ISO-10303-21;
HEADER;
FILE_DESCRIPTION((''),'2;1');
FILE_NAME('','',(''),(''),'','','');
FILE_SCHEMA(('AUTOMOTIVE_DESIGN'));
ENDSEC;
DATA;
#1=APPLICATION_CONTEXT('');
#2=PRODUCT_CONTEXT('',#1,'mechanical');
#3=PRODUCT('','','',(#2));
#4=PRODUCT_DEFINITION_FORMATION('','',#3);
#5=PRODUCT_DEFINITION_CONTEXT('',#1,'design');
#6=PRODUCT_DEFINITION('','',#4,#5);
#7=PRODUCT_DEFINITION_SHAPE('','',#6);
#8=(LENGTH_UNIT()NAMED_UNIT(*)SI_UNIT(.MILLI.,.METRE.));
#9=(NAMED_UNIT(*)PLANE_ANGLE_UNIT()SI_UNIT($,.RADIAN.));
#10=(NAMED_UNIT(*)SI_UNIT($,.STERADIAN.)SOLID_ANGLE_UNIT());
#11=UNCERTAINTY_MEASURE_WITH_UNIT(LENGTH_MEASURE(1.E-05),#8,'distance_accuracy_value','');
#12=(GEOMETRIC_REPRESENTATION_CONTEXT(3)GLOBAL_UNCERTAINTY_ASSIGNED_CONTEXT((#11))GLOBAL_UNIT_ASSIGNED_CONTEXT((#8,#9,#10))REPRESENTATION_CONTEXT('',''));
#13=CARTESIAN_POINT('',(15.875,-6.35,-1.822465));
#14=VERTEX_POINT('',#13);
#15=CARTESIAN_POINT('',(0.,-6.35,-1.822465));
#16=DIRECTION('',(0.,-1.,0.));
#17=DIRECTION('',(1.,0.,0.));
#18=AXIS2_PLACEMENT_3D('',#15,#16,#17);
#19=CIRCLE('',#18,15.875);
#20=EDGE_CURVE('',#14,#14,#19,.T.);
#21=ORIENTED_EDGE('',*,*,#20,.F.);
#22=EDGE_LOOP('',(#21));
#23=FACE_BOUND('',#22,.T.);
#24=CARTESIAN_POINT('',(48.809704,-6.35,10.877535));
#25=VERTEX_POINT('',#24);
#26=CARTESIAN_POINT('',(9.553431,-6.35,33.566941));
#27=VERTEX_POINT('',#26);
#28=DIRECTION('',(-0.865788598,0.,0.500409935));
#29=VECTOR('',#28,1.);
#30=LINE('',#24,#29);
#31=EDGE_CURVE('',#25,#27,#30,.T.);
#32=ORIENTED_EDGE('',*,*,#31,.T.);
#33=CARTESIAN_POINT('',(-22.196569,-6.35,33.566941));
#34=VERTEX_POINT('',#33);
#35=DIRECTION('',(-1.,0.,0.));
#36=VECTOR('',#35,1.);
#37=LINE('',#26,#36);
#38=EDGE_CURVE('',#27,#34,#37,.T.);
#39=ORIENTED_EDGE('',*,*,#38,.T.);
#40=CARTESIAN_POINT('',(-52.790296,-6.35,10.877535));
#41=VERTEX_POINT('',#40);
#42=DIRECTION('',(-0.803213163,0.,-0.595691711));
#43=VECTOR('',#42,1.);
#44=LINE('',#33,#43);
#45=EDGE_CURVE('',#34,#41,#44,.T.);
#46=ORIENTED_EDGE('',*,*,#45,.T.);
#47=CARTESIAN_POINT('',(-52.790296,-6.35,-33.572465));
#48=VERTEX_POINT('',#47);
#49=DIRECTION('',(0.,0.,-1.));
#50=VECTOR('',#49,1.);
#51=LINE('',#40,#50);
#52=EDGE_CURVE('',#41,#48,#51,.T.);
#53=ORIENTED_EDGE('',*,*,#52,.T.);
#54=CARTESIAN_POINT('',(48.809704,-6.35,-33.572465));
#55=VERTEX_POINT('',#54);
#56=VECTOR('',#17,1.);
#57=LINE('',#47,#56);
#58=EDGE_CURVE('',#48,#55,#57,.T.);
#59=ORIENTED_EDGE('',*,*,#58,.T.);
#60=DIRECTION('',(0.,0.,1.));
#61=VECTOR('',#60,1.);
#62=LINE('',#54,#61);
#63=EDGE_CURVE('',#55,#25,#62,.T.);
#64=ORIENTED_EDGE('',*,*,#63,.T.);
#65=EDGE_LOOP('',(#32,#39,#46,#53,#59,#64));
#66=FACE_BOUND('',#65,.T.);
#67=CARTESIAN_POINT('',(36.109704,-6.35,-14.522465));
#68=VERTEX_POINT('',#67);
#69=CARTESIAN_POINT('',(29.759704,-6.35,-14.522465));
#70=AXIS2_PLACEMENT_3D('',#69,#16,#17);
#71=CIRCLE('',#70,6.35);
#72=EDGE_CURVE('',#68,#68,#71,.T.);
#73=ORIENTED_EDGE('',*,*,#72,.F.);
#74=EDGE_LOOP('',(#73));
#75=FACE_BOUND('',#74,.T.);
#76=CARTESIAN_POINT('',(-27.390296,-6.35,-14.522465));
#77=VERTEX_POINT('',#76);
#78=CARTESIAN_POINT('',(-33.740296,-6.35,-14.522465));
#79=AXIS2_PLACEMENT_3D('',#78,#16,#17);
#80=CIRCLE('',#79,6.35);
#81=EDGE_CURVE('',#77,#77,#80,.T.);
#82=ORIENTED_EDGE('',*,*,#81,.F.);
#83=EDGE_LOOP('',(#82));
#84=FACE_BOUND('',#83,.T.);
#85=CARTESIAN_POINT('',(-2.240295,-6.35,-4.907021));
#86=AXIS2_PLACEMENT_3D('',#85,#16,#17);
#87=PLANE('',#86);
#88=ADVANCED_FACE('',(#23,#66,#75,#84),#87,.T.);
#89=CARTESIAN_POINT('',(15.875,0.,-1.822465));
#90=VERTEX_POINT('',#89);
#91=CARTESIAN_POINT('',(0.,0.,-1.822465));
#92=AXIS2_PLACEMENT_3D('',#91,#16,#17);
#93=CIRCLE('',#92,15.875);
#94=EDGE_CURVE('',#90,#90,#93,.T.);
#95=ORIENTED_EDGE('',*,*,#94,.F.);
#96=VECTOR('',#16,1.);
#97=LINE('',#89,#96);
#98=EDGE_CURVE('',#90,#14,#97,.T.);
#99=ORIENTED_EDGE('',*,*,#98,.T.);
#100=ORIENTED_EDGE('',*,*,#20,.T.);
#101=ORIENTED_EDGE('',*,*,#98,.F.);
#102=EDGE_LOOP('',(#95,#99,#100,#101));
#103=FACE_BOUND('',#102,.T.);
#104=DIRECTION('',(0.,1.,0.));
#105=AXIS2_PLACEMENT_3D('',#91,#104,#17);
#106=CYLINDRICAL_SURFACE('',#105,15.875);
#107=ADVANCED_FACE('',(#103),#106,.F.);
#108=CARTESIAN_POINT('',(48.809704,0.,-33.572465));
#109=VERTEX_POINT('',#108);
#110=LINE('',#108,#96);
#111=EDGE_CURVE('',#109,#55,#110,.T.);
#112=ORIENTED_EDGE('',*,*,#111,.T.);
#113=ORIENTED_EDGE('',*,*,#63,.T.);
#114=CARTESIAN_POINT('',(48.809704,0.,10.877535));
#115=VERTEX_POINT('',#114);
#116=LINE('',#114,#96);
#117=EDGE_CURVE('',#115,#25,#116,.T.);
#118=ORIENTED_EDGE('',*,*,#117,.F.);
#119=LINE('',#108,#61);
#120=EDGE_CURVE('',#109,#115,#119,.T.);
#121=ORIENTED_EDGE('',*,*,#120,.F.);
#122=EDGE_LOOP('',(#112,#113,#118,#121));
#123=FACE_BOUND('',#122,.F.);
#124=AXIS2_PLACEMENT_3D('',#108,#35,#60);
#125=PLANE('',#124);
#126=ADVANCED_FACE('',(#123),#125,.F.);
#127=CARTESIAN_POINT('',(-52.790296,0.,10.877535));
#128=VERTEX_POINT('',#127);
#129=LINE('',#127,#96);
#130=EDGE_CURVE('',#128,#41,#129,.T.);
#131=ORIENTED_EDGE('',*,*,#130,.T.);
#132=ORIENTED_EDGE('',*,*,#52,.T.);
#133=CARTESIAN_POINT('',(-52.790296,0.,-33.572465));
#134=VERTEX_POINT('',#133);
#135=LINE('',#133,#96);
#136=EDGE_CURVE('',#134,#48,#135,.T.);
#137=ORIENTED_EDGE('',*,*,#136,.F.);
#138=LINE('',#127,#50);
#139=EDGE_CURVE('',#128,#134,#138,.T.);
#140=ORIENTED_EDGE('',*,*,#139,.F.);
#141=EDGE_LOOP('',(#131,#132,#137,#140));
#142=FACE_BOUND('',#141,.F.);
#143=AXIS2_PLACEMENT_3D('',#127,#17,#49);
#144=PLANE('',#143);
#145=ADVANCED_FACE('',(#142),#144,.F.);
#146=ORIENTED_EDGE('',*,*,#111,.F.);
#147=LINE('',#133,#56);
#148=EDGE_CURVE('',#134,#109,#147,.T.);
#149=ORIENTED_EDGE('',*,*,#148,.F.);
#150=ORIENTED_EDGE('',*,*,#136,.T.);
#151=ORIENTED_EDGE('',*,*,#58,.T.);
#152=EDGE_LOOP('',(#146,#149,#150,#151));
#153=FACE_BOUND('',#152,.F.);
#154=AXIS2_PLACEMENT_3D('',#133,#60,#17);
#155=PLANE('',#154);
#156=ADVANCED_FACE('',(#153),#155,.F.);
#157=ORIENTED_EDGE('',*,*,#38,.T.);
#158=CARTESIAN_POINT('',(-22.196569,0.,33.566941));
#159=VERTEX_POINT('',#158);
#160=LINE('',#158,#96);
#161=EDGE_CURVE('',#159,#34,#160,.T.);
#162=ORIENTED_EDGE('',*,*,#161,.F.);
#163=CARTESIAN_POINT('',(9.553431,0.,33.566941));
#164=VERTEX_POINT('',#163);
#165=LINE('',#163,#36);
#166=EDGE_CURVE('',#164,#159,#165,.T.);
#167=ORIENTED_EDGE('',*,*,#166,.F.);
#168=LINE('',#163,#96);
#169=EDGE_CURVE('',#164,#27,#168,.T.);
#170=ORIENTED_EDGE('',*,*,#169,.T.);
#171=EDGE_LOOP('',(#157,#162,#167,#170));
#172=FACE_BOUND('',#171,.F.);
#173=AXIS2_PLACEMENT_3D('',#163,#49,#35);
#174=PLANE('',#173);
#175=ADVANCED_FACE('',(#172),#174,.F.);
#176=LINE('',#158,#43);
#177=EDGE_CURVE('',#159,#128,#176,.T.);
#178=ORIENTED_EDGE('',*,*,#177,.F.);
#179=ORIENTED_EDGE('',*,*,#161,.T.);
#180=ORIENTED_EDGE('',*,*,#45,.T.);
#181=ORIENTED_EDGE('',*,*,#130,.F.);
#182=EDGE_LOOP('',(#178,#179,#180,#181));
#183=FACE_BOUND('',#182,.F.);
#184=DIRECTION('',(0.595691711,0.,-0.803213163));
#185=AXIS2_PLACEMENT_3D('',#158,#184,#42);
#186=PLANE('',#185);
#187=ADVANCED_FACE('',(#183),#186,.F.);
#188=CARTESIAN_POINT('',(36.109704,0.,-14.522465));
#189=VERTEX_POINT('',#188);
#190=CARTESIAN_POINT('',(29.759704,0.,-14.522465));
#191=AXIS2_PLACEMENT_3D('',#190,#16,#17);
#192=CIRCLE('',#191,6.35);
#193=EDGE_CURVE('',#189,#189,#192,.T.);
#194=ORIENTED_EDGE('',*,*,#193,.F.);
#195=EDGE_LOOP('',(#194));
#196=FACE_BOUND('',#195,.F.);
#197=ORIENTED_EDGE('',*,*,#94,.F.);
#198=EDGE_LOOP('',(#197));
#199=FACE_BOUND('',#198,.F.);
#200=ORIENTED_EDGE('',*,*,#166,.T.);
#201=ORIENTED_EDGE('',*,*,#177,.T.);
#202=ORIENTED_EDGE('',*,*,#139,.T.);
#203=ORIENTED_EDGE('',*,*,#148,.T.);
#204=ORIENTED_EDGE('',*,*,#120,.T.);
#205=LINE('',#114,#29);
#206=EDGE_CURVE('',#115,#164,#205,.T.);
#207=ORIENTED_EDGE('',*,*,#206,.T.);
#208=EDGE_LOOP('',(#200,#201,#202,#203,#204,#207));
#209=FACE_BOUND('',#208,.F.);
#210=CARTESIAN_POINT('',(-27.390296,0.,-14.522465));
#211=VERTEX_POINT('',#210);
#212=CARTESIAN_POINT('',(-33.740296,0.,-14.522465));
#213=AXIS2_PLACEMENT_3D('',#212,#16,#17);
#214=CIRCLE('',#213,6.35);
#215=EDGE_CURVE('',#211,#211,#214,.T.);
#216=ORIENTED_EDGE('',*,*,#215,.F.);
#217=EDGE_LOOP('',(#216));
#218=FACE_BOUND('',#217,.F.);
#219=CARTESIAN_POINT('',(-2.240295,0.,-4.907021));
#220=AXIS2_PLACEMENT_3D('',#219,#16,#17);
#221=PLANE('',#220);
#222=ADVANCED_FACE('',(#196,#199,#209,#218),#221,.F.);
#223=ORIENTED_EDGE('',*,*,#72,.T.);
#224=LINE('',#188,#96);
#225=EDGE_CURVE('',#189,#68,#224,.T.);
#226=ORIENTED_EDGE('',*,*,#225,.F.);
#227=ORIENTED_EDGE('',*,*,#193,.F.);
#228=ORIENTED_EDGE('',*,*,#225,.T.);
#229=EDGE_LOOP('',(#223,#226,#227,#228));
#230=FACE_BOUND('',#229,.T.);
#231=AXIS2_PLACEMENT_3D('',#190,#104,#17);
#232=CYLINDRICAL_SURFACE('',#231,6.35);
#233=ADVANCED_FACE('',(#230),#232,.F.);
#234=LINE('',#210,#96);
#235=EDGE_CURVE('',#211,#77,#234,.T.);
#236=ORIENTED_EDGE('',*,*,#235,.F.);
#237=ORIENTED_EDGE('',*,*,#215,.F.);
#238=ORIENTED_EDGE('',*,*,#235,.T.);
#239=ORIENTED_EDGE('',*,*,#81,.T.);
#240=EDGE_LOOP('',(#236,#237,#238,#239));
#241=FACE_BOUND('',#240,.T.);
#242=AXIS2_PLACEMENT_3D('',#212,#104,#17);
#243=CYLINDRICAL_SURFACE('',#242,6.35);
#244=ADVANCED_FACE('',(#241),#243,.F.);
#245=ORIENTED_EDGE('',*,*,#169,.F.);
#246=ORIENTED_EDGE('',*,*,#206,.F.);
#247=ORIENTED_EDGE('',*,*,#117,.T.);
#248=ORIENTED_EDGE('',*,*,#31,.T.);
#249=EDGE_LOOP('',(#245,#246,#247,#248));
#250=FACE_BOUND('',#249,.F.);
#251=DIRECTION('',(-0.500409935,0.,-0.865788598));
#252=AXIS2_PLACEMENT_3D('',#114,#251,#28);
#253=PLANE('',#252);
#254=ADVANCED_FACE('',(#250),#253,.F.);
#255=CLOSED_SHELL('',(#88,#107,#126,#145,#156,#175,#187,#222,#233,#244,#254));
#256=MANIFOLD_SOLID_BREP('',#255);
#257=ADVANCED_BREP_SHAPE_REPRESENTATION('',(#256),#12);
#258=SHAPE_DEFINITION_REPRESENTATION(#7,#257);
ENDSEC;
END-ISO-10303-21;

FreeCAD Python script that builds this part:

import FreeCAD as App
import Part
import Sketcher
from FreeCAD import Vector
Q = App.Units.Quantity

doc = App.newDocument("Part")
params = doc.addObject("Spreadsheet::Sheet", "Params")
for row, (alias, value) in enumerate([
    ("sketch1_diameter", "0.5 in"),
    ("sketch1_diameter2", "1.25 in"),
    ("sketch1_width", "4 in"),
    ("sketch1_width2", "1.25 in"),
    ("sketch1_height", "1.75 in"),
    ("pad1_length", "0.25 in"),
], start=1):
    params.set(f"A{row}", alias)
    params.set(f"B{row}", "=" + value)
    params.setAlias(f"B{row}", alias)

body = doc.addObject("PartDesign::Body", "Body")

# Sketch on XZ plane
sketch1 = body.newObject("Sketcher::SketchObject", "Sketch")
sketch1.AttachmentSupport = (doc.getObject("XZ_Plane"), [""])
sketch1.MapMode = "FlatFace"
sketch1.addGeometry([
    Part.LineSegment(Vector(-53, 11, 0), Vector(-53, -34, 0)),  # 0
    Part.LineSegment(Vector(-53, -34, 0), Vector(49, -34, 0)),  # 1
    Part.LineSegment(Vector(49, -34, 0), Vector(49, 11, 0)),  # 2
    Part.LineSegment(Vector(49, 11, 0), Vector(10, 34, 0)),  # 3
    Part.LineSegment(Vector(10, 34, 0), Vector(-22, 34, 0)),  # 4
    Part.LineSegment(Vector(-22, 34, 0), Vector(-53, 11, 0)),  # 5
    Part.Circle(Vector(-34, -15, 0), Vector(0, 0, 1), 6),  # 6
    Part.Circle(Vector(30, -15, 0), Vector(0, 0, 1), 6),  # 7
    Part.Circle(Vector(0, -2, 0), Vector(0, 0, 1), 16),  # 8
], False)
sketch1.addConstraint([
    Sketcher.Constraint("Coincident", 0, 2, 1, 1),
    Sketcher.Constraint("Coincident", 1, 2, 2, 1),
    Sketcher.Constraint("Coincident", 2, 2, 3, 1),
    Sketcher.Constraint("Coincident", 3, 2, 4, 1),
    Sketcher.Constraint("Coincident", 4, 2, 5, 1),
    Sketcher.Constraint("Coincident", 5, 2, 0, 1),
    Sketcher.Constraint("Vertical", 0),
    Sketcher.Constraint("Horizontal", 1),
    Sketcher.Constraint("Vertical", 2),
    Sketcher.Constraint("Horizontal", 4),
    Sketcher.Constraint("Equal", 6, 7),
    Sketcher.Constraint("PointOnObject", 8, 3, -2),
    Sketcher.Constraint("Horizontal", 6, 3, 7, 3),
    Sketcher.Constraint("Horizontal", 2, 2, 5, 2),
    Sketcher.Constraint("Diameter", 6, Q("0.5 in")),
    Sketcher.Constraint("Diameter", 8, Q("1.25 in")),
    Sketcher.Constraint("DistanceX", 1, 1, 1, 2, Q("4 in")),
    Sketcher.Constraint("DistanceY", 7, 3, 2, 2, Q("1 in")),
    Sketcher.Constraint("DistanceX", 4, 2, 4, 1, Q("1.25 in")),
    Sketcher.Constraint("DistanceY", 0, 2, 0, 1, Q("1.75 in")),
    Sketcher.Constraint("DistanceX", 6, 3, 7, 3, Q("2.5 in")),
    Sketcher.Constraint("DistanceY", 7, 3, 8, 3, Q("0.5 in")),
    Sketcher.Constraint("DistanceX", 0, 2, 6, 3, Q("0.75 in")),
    Sketcher.Constraint("DistanceX", -1, 1, 3, 2, 9.553431),
    Sketcher.Constraint("DistanceY", -1, 1, 3, 2, 33.566941),
    Sketcher.Constraint("Distance", 3, 45.341638),
    Sketcher.Constraint("Distance", 5, 38.089175),
])
sketch1.setExpression("Constraints[14]", "Params.sketch1_diameter")
sketch1.setExpression("Constraints[15]", "Params.sketch1_diameter2")
sketch1.setExpression("Constraints[16]", "Params.sketch1_width")
sketch1.setExpression("Constraints[18]", "Params.sketch1_width2")
sketch1.setExpression("Constraints[19]", "Params.sketch1_height")
pad1 = body.newObject("PartDesign::Pad", "Pad")
pad1.Profile = sketch1
pad1.setExpression("Length", "Params.pad1_length")

doc.recompute()
